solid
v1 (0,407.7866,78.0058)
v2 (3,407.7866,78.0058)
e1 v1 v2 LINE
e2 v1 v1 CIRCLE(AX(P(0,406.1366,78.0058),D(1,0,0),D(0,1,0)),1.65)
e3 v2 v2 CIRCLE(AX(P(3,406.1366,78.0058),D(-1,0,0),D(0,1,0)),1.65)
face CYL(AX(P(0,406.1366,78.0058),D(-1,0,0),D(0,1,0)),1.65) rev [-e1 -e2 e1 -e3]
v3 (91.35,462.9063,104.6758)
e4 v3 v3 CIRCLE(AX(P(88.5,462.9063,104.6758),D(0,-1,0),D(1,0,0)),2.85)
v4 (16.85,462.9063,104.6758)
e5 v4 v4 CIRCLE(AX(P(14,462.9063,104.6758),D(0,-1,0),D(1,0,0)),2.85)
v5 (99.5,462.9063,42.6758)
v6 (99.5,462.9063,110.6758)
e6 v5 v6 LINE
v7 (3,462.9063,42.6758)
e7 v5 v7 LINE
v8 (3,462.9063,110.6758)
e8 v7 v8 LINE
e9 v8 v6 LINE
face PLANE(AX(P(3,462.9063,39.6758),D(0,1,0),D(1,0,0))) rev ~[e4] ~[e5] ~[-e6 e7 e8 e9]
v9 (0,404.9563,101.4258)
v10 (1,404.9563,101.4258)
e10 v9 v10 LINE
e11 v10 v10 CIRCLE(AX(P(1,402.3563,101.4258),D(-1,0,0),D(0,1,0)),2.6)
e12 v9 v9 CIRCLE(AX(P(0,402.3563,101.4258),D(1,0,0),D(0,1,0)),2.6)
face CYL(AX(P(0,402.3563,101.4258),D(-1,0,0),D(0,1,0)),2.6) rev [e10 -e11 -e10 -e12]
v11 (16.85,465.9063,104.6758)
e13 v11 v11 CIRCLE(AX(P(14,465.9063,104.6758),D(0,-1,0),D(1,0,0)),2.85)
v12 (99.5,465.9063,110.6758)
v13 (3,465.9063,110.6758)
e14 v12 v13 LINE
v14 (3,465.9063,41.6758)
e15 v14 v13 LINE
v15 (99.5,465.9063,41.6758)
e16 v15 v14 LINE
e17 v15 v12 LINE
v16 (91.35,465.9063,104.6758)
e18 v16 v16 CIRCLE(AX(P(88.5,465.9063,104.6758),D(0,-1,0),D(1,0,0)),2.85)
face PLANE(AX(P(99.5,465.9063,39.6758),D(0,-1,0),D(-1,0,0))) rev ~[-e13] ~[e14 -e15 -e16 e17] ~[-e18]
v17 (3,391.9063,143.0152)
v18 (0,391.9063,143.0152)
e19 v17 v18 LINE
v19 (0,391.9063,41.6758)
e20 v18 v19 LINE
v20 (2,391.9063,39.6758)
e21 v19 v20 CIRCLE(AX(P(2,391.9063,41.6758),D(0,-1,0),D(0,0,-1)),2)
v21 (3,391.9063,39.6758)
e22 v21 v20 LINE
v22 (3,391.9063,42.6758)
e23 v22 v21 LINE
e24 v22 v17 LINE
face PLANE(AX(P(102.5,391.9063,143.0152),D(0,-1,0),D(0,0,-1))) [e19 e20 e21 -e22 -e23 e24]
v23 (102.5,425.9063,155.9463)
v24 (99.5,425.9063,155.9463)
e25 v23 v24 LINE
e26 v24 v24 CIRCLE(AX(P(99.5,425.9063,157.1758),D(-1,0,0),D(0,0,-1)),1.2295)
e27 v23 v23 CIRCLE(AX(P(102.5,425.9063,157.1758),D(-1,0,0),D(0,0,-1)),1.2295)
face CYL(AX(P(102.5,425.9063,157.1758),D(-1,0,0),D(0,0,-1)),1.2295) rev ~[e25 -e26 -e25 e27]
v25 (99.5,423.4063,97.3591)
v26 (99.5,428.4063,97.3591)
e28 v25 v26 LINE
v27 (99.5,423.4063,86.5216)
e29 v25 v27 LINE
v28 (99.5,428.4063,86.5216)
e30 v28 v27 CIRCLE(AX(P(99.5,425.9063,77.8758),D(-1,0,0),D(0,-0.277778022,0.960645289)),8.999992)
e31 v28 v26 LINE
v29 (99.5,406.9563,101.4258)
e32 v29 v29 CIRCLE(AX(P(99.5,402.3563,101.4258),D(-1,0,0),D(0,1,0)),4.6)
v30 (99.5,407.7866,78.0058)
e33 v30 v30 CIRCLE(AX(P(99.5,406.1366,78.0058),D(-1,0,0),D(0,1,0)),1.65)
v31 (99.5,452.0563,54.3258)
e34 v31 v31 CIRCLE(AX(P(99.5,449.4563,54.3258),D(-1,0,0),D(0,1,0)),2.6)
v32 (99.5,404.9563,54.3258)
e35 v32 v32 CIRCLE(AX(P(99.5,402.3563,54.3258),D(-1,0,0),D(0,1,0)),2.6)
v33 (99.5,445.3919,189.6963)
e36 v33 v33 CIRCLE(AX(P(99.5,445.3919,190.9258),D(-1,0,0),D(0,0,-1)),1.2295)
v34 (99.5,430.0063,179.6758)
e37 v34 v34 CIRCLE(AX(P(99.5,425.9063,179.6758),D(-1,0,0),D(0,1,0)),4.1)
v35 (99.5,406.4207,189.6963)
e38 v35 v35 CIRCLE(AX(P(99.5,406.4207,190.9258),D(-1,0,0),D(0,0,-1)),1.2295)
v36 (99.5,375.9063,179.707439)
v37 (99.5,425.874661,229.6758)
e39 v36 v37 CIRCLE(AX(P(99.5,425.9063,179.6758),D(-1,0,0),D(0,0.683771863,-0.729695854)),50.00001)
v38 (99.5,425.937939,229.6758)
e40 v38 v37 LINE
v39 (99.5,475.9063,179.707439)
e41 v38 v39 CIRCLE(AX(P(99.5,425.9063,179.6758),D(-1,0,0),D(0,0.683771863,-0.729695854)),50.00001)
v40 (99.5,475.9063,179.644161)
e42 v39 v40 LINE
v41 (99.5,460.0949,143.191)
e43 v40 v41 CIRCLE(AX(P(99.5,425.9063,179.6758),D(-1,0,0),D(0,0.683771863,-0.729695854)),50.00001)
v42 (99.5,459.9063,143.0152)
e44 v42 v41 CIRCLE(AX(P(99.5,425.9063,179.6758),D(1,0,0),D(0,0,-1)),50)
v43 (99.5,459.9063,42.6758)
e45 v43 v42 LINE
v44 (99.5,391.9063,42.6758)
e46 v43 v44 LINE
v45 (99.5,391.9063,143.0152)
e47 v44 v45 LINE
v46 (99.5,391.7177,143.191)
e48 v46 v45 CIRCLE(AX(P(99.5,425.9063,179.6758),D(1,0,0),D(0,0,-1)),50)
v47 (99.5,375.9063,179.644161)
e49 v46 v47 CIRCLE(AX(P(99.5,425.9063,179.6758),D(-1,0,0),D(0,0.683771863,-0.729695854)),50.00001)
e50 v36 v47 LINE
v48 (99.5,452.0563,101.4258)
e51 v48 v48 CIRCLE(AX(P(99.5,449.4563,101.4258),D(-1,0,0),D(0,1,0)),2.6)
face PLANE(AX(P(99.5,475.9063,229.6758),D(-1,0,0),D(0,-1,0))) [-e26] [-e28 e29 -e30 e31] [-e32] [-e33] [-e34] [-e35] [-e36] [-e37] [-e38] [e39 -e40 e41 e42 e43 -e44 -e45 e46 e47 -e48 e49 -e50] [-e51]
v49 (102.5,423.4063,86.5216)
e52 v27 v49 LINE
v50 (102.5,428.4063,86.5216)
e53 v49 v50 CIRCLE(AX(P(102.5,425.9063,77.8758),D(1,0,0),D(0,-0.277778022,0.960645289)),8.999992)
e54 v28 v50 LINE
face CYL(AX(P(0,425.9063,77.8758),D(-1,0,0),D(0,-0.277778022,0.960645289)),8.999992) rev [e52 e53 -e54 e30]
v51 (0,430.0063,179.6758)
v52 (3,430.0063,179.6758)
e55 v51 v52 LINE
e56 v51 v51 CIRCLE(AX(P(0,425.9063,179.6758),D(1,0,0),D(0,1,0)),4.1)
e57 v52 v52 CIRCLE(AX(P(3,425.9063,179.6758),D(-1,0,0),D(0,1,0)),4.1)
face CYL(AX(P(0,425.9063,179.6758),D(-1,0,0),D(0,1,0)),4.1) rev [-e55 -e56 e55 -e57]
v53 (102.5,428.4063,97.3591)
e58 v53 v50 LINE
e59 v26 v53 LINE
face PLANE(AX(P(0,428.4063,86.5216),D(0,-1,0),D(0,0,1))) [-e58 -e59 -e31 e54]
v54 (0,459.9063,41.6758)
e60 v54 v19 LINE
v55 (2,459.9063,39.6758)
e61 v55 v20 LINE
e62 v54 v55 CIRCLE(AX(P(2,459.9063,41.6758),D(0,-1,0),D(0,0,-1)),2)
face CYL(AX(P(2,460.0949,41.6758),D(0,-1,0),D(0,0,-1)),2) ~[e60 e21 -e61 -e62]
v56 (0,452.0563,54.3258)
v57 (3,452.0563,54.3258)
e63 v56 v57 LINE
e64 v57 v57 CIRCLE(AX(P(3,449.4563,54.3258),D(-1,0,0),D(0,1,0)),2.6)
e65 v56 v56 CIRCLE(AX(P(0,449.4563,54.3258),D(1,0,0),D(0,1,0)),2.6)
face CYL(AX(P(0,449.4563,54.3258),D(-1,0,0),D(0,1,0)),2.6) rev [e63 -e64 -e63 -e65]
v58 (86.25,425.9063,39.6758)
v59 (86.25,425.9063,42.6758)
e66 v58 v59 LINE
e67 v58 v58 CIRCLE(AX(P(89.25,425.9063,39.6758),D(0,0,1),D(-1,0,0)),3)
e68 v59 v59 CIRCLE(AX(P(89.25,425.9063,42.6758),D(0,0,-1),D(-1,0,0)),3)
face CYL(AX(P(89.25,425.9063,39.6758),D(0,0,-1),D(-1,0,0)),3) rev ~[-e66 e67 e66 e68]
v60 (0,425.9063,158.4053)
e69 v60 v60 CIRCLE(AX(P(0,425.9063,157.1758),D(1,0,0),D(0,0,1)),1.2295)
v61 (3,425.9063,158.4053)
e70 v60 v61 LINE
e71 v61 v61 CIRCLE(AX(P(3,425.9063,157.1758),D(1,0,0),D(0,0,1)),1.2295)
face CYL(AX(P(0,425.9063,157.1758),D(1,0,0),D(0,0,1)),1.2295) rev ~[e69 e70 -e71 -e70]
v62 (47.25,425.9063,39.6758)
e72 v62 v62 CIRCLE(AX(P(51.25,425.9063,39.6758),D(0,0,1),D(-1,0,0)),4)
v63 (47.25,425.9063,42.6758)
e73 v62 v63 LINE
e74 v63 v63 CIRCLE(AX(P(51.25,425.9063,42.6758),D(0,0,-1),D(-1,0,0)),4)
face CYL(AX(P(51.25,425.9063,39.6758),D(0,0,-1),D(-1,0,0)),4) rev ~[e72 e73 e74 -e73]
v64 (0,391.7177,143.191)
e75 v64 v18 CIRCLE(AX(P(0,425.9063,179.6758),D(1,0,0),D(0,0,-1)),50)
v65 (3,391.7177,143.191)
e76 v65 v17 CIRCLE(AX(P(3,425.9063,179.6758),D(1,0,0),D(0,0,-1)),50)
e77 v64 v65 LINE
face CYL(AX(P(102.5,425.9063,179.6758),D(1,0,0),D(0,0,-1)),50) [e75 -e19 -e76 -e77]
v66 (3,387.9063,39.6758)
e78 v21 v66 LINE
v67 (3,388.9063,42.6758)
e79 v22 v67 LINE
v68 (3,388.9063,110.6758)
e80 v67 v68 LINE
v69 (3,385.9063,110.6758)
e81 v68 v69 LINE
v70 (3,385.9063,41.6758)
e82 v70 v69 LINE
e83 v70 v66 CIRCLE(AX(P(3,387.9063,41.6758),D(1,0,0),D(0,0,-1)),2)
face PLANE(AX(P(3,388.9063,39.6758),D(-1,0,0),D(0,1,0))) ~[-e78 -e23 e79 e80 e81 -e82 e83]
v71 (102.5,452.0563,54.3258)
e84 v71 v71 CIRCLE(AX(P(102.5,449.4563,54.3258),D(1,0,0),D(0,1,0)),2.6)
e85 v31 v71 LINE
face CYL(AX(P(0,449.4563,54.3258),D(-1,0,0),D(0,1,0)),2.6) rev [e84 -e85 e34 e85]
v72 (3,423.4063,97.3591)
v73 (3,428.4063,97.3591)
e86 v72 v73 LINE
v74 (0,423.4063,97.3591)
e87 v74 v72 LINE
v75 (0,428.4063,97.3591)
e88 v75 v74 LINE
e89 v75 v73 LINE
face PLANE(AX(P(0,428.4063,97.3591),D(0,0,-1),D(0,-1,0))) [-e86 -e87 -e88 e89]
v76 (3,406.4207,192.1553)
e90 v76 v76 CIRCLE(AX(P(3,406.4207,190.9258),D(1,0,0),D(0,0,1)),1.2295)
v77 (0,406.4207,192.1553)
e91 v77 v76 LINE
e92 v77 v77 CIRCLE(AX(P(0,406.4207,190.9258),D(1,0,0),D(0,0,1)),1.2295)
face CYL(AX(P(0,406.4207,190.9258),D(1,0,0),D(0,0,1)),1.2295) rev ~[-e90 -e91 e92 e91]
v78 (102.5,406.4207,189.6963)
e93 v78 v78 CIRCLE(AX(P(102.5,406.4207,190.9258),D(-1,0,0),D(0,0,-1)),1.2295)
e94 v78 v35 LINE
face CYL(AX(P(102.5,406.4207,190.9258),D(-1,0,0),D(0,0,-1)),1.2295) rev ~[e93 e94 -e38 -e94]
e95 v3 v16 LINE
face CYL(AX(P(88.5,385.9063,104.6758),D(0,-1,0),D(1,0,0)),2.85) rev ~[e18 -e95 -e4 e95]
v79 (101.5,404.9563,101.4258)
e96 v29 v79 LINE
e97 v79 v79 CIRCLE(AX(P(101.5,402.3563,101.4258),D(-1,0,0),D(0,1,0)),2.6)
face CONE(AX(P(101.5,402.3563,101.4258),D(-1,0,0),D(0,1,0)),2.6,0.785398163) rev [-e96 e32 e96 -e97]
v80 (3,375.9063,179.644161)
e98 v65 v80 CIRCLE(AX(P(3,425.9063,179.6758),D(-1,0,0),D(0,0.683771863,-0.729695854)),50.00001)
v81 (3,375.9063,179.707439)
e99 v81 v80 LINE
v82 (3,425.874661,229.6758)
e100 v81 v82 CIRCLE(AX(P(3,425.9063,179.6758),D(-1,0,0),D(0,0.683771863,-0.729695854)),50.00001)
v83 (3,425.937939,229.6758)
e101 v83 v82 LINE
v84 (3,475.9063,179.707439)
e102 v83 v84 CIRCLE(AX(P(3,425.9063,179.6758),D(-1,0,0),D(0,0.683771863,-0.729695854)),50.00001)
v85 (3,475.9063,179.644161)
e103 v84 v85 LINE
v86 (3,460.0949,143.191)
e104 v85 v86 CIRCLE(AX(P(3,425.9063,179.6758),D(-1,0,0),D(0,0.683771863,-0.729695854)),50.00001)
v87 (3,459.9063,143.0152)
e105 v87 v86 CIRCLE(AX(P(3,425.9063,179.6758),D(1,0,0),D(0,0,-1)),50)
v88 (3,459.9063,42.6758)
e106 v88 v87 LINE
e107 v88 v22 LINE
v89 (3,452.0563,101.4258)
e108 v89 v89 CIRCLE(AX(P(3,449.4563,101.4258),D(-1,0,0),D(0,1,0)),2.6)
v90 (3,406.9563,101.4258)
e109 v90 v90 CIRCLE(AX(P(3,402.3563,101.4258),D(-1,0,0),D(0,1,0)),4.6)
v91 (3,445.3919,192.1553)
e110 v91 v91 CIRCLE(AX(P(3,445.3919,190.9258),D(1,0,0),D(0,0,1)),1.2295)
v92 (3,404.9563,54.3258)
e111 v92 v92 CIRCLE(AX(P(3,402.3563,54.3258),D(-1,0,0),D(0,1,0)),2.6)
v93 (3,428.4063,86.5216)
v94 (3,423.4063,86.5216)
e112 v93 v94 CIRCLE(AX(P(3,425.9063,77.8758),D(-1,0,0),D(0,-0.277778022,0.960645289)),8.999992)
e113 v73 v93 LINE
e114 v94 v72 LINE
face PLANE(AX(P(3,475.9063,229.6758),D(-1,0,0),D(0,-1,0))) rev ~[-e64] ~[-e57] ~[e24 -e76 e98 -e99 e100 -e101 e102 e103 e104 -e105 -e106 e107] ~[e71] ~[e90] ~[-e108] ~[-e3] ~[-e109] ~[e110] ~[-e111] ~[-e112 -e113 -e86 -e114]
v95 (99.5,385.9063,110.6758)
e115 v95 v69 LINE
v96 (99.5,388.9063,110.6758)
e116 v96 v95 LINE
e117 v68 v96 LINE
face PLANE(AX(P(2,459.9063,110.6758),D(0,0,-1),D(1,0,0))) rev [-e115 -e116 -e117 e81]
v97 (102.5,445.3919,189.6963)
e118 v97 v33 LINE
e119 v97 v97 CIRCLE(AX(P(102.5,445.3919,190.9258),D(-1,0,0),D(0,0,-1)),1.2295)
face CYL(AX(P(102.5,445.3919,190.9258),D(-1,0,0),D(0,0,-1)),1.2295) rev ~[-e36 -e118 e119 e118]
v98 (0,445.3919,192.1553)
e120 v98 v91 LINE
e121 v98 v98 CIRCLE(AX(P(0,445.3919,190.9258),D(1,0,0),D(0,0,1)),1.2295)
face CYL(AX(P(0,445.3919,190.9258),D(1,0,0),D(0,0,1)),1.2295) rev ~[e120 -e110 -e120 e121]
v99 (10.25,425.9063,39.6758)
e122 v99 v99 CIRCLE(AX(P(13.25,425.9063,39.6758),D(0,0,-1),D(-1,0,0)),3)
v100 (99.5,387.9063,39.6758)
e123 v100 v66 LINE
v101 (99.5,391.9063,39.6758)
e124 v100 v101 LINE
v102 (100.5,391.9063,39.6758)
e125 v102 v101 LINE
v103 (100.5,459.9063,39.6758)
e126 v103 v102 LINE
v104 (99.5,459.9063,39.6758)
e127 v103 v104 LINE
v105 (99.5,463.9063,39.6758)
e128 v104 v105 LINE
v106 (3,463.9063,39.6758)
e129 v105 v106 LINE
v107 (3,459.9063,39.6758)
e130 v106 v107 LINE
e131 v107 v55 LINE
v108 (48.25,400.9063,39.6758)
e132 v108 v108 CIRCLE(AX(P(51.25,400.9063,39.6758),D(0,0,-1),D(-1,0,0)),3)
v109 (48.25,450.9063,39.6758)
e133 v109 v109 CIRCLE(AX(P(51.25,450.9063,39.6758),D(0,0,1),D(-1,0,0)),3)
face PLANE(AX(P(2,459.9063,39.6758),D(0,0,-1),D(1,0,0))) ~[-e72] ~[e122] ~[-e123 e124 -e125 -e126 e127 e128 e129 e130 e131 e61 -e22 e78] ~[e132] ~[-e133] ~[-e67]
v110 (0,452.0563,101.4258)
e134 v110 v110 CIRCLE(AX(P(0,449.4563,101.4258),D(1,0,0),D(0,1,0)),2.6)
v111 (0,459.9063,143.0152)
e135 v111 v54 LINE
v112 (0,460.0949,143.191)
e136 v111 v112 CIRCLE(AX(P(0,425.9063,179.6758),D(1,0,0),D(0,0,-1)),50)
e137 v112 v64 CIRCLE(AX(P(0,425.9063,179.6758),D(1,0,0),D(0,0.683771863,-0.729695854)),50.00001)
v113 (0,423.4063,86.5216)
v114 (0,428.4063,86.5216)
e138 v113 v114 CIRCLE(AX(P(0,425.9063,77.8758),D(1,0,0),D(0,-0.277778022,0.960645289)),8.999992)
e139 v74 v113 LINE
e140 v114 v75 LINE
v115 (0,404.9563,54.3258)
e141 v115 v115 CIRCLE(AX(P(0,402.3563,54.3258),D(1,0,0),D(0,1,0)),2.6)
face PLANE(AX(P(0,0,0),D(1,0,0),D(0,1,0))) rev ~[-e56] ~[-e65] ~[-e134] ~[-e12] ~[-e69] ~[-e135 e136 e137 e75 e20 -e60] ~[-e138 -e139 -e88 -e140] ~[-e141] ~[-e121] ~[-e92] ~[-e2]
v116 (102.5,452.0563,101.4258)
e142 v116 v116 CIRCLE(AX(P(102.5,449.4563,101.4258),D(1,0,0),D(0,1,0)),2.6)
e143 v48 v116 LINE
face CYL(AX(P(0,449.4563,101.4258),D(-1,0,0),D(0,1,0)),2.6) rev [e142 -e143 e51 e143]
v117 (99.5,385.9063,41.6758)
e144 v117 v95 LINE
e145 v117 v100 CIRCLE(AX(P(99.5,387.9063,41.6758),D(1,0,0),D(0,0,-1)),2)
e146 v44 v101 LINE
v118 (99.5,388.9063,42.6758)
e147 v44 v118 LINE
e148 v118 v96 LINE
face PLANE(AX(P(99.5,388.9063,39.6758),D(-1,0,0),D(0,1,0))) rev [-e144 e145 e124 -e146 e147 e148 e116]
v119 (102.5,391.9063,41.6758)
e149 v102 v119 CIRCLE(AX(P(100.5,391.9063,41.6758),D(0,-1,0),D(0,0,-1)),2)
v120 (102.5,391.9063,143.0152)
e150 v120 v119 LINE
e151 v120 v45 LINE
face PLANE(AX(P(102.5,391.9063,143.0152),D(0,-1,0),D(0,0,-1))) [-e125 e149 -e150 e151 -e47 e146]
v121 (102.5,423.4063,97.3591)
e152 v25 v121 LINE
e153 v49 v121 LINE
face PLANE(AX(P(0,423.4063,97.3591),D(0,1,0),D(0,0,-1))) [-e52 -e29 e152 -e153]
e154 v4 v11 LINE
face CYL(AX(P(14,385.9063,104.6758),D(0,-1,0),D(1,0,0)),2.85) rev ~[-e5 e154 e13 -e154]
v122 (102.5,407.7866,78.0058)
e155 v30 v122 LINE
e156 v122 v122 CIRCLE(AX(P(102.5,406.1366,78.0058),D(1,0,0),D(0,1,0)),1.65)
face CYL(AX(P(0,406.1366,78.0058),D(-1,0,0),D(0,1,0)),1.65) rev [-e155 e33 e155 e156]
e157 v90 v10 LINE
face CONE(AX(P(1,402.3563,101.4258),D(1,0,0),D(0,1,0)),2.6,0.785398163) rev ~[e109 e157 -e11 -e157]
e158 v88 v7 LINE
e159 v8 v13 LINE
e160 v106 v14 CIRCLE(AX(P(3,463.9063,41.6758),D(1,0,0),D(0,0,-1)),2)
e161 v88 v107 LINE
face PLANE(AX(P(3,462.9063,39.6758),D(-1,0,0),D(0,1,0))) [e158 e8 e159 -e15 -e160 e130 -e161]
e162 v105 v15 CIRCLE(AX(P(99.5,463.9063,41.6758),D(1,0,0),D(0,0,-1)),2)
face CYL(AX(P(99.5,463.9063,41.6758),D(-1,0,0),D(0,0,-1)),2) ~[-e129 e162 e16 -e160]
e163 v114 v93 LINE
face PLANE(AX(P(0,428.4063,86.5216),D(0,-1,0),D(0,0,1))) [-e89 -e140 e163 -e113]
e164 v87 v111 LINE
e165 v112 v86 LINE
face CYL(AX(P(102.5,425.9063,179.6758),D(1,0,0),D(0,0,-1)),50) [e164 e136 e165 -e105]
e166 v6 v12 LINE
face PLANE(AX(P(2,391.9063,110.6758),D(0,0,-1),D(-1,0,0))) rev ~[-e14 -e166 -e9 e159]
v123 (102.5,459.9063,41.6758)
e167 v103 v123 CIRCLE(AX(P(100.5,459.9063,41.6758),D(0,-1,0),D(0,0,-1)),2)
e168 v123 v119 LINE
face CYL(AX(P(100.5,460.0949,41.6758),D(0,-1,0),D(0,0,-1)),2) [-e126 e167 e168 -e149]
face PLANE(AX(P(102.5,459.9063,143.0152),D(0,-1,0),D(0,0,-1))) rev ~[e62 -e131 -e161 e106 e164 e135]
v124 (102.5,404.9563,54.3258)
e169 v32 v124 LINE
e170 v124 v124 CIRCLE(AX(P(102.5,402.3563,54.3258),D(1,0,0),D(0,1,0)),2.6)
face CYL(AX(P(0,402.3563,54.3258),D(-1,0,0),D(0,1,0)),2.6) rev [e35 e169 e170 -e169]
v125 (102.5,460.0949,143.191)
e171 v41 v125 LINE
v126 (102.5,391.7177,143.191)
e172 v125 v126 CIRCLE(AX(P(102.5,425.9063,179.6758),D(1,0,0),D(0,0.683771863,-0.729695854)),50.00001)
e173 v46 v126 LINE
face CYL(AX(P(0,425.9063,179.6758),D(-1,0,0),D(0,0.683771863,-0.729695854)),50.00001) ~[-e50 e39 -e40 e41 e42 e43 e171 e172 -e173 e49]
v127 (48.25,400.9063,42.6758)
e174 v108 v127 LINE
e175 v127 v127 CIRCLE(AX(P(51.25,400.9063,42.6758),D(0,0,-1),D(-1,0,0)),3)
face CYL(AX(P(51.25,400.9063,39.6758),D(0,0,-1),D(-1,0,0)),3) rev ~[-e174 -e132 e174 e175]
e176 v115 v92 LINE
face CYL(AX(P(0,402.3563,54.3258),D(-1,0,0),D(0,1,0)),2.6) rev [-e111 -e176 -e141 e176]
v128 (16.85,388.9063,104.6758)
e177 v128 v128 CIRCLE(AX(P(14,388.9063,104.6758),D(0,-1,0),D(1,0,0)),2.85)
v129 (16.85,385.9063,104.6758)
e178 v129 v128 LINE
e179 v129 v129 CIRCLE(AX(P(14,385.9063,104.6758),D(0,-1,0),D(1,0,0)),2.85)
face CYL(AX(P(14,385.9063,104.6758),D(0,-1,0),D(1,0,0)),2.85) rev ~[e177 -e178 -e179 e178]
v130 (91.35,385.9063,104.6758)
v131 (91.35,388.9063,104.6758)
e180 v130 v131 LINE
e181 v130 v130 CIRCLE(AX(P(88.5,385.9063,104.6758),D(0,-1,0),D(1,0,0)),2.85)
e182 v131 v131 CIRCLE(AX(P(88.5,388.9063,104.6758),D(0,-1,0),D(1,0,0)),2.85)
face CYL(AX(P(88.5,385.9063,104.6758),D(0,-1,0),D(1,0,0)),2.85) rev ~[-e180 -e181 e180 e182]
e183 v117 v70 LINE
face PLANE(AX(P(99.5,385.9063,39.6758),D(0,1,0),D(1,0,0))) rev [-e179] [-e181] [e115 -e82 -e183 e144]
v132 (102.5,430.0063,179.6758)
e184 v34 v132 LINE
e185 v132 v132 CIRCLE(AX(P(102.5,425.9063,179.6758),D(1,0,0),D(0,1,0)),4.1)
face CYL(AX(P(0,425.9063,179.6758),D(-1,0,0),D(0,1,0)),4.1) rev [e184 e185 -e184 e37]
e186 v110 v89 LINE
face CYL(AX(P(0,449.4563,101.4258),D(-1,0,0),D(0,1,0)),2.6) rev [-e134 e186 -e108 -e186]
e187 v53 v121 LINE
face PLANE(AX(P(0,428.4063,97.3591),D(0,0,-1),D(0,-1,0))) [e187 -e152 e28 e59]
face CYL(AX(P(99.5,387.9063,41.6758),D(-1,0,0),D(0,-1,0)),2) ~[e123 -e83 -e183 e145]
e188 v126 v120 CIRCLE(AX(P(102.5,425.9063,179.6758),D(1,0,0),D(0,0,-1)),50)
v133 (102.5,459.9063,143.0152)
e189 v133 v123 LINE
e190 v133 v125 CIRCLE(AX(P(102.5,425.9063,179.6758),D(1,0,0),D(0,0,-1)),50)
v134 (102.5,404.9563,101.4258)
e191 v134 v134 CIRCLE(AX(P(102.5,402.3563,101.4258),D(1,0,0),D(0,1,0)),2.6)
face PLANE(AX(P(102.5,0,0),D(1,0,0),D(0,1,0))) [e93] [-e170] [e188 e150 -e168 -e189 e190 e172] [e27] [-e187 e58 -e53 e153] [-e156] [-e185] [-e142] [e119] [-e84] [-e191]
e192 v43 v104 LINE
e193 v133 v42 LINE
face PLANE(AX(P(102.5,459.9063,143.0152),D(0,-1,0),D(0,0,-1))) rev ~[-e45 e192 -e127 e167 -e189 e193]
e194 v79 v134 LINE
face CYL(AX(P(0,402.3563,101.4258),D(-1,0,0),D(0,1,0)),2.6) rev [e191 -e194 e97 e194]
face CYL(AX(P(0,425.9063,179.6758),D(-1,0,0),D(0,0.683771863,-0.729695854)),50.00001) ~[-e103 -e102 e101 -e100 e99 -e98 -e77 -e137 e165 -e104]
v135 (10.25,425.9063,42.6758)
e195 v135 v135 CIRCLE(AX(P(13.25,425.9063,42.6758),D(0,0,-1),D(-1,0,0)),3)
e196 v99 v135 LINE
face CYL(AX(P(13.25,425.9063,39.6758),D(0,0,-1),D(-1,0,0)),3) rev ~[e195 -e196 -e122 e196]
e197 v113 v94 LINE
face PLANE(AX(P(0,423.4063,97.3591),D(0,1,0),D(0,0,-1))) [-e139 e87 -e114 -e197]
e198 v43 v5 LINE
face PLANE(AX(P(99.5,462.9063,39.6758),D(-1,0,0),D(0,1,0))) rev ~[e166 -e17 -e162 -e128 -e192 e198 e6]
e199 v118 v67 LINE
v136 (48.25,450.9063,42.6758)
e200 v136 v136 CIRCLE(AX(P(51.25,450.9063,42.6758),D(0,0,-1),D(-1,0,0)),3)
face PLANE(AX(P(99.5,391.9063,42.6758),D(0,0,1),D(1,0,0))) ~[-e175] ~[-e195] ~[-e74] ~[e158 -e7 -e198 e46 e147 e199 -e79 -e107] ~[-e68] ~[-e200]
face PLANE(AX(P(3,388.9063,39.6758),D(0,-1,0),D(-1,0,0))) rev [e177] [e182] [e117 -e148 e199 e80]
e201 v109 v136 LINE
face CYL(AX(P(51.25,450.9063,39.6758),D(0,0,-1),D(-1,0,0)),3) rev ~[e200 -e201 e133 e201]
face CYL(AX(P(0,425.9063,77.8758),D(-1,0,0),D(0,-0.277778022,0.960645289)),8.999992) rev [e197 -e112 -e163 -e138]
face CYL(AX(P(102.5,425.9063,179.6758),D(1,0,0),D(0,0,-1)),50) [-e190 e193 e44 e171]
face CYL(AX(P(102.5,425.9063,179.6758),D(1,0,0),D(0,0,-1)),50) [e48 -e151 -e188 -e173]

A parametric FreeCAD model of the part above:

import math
import FreeCAD as App
import Part
import Sketcher


def edges_at(feature, points):
    """Names of the edges that pass closest to the given points."""
    edges = feature.Shape.Edges
    near = lambda p: min(range(len(edges)), key=lambda i: edges[i].distToShape(Part.Vertex(*p))[0])
    return sorted({f"Edge{near(p) + 1}" for p in points})


def add_polygon(sketch, points):
    """Adds a closed chain of lines whose ends are joined by coincident constraints."""
    first, n = sketch.GeometryCount, len(points)
    for a, b in zip(points, points[1:] + points[:1]):
        sketch.addGeometry(Part.LineSegment(App.Vector(*a, 0), App.Vector(*b, 0)), False)
    for i in range(n):
        sketch.addConstraint(Sketcher.Constraint("Coincident", first + i, 2, first + (i + 1) % n, 1))

doc = App.newDocument("Part")
body = doc.addObject("PartDesign::Body", "Body")

# Sketch on YZ plane
sketch1 = body.newObject("Sketcher::SketchObject", "Sketch")
sketch1.AttachmentSupport = (doc.getObject("YZ_Plane"), [""])
sketch1.MapMode = "FlatFace"
sketch1.addGeometry(Part.LineSegment(App.Vector(391.7177, 39.6758, 0), App.Vector(460.0949, 39.6758, 0)), False)
sketch1.addGeometry(Part.LineSegment(App.Vector(460.0949, 39.6758, 0), App.Vector(460.0949, 143.191, 0)), False)
sketch1.addGeometry(Part.ArcOfCircle(Part.Circle(App.Vector(425.9063, 179.6758, 0), App.Vector(0, 0, 1), 50.00001), math.radians(-46.860902), math.radians(226.860902)), False)
sketch1.addGeometry(Part.LineSegment(App.Vector(391.7177, 143.191, 0), App.Vector(391.7177, 39.6758, 0)), False)
sketch1.addGeometry(Part.Circle(App.Vector(402.3563, 54.3258, 0), App.Vector(0, 0, 1), 2.6), False)
sketch1.addGeometry(Part.Circle(App.Vector(406.1366, 78.0058, 0), App.Vector(0, 0, 1), 1.65), False)
sketch1.addGeometry(Part.Circle(App.Vector(402.3563, 101.4258, 0), App.Vector(0, 0, 1), 2.6), False)
sketch1.addGeometry(Part.Circle(App.Vector(449.4563, 54.3258, 0), App.Vector(0, 0, 1), 2.6), False)
sketch1.addGeometry(Part.LineSegment(App.Vector(428.4063, 97.3591, 0), App.Vector(428.4063, 86.5216, 0)), False)
sketch1.addGeometry(Part.ArcOfCircle(Part.Circle(App.Vector(425.9063, 77.8758, 0), App.Vector(0, 0, 1), 8.999992), math.radians(106.127635), math.radians(433.872365)), False)
sketch1.addGeometry(Part.LineSegment(App.Vector(423.4063, 86.5216, 0), App.Vector(423.4063, 97.3591, 0)), False)
sketch1.addGeometry(Part.LineSegment(App.Vector(423.4063, 97.3591, 0), App.Vector(428.4063, 97.3591, 0)), False)
sketch1.addGeometry(Part.Circle(App.Vector(449.4563, 101.4258, 0), App.Vector(0, 0, 1), 2.6), False)
sketch1.addGeometry(Part.Circle(App.Vector(425.9063, 179.6758, 0), App.Vector(0, 0, 1), 4.1), False)
sketch1.addConstraint(Sketcher.Constraint("Coincident", 0, 2, 1, 1))
sketch1.addConstraint(Sketcher.Constraint("Coincident", 1, 2, 2, 1))
sketch1.addConstraint(Sketcher.Constraint("Coincident", 2, 2, 3, 1))
sketch1.addConstraint(Sketcher.Constraint("Coincident", 3, 2, 0, 1))
sketch1.addConstraint(Sketcher.Constraint("Coincident", 8, 2, 9, 2))
sketch1.addConstraint(Sketcher.Constraint("Coincident", 9, 1, 10, 1))
sketch1.addConstraint(Sketcher.Constraint("Coincident", 10, 2, 11, 1))
sketch1.addConstraint(Sketcher.Constraint("Coincident", 11, 2, 8, 1))
sketch1.addConstraint(Sketcher.Constraint("Horizontal", 0))
sketch1.addConstraint(Sketcher.Constraint("Vertical", 1))
sketch1.addConstraint(Sketcher.Constraint("Vertical", 3))
sketch1.addConstraint(Sketcher.Constraint("Vertical", 8))
sketch1.addConstraint(Sketcher.Constraint("Vertical", 10))
sketch1.addConstraint(Sketcher.Constraint("Horizontal", 11))
sketch1.addConstraint(Sketcher.Constraint("Coincident", 13, 3, 2, 3))
sketch1.addConstraint(Sketcher.Constraint("Equal", 4, 6))
sketch1.addConstraint(Sketcher.Constraint("Equal", 6, 7))
sketch1.addConstraint(Sketcher.Constraint("Equal", 7, 12))
sketch1.addConstraint(Sketcher.Constraint("Horizontal", 4, 3, 7, 3))
sketch1.addConstraint(Sketcher.Constraint("Horizontal", 6, 3, 12, 3))
sketch1.addConstraint(Sketcher.Constraint("Horizontal", 1, 2, 2, 2))
sketch1.addConstraint(Sketcher.Constraint("Horizontal", 8, 2, 9, 1))
sketch1.addConstraint(Sketcher.Constraint("Vertical", 4, 3, 6, 3))
sketch1.addConstraint(Sketcher.Constraint("Vertical", 2, 3, 9, 3))
sketch1.addConstraint(Sketcher.Constraint("Vertical", 7, 3, 12, 3))
sketch1.addConstraint(Sketcher.Constraint("Radius", 2, 50.0))
sketch1.addConstraint(Sketcher.Constraint("Radius", 9, 9.0))
sketch1.addConstraint(Sketcher.Constraint("Diameter", 4, 5.2))
sketch1.addConstraint(Sketcher.Constraint("Diameter", 5, 3.3))
sketch1.addConstraint(Sketcher.Constraint("Diameter", 13, 8.2))
sketch1.addConstraint(Sketcher.Constraint("DistanceX", 11, 1, 11, 2, 5.0))
sketch1.addConstraint(Sketcher.Constraint("DistanceX", 0, 1, 0, 2, 68.3772))
sketch1.addConstraint(Sketcher.Constraint("DistanceY", 8, 2, 8, 1, 10.8375))
sketch1.addConstraint(Sketcher.Constraint("DistanceY", 4, 3, 6, 3, 47.1))
sketch1.addConstraint(Sketcher.Constraint("DistanceX", 4, 3, 7, 3, 47.1))
sketch1.addConstraint(Sketcher.Constraint("DistanceY", 9, 3, 2, 3, 101.8))
sketch1.addConstraint(Sketcher.Constraint("DistanceX", 7, 3, 0, 2, 10.6386))
sketch1.addConstraint(Sketcher.Constraint("DistanceY", 0, 2, 9, 3, 38.2))
sketch1.addConstraint(Sketcher.Constraint("DistanceX", 5, 3, 8, 2, 22.2697))
sketch1.addConstraint(Sketcher.Constraint("DistanceY", 10, 2, 6, 3, 4.0667))
sketch1.addConstraint(Sketcher.Constraint("DistanceY", 5, 3, 10, 2, 19.3533))
sketch1.addConstraint(Sketcher.Constraint("DistanceX", -1, 1, 0, 2, 460.095))
sketch1.addConstraint(Sketcher.Constraint("DistanceY", -1, 1, 1, 2, 143.191))
pad1 = body.newObject("PartDesign::Pad", "Pad")
pad1.Profile = sketch1
pad1.Length = 102.5

# Sketch on XY plane
sketch2 = body.newObject("Sketcher::SketchObject", "Sketch001")
sketch2.AttachmentSupport = (doc.getObject("XY_Plane"), [""])
sketch2.MapMode = "FlatFace"
sketch2.AttachmentOffset = App.Placement(App.Vector(0, 0, 229.6758), App.Rotation())
add_polygon(sketch2, [(3, 375.9063), (3, 475.9063), (99.5, 475.9063), (99.5, 375.9063)])  # lines 0-3
sketch2.addConstraint(Sketcher.Constraint("Vertical", 0))
sketch2.addConstraint(Sketcher.Constraint("Horizontal", 1))
sketch2.addConstraint(Sketcher.Constraint("Vertical", 2))
sketch2.addConstraint(Sketcher.Constraint("Horizontal", 3))
sketch2.addConstraint(Sketcher.Constraint("DistanceX", -1, 1, 0, 2, 3.0))
sketch2.addConstraint(Sketcher.Constraint("DistanceY", 0, 1, 0, 2, 100.0))
sketch2.addConstraint(Sketcher.Constraint("DistanceX", 1, 1, 1, 2, 96.5))
sketch2.addConstraint(Sketcher.Constraint("DistanceY", -1, 1, 0, 2, 475.9063))
pocket1 = body.newObject("PartDesign::Pocket", "Pocket")
pocket1.Profile = sketch2
pocket1.Length = 187
doc.recompute()

fillet = body.newObject("PartDesign::Fillet", "Fillet")
fillet.Base = (pocket1, edges_at(pocket1, [(0, 425.906, 39.676), (102.5, 425.906, 39.676)]))
fillet.Radius = 2

# Sketch on YZ plane
sketch3 = body.newObject("Sketcher::SketchObject", "Sketch002")
sketch3.AttachmentSupport = (doc.getObject("YZ_Plane"), [""])
sketch3.MapMode = "FlatFace"
sketch3.AttachmentOffset = App.Placement(App.Vector(0, 0, 102.5), App.Rotation())
sketch3.addGeometry(Part.ArcOfCircle(Part.Circle(App.Vector(425.9063, 179.6758, 0), App.Vector(0, 0, 1), 50), math.radians(-47.156353), math.radians(-46.860902)), False)
sketch3.addGeometry(Part.LineSegment(App.Vector(459.9063, 143.0152, 0), App.Vector(459.9063, 39.6758, 0)), False)
sketch3.addGeometry(Part.LineSegment(App.Vector(459.9063, 39.6758, 0), App.Vector(460.0949, 39.6758, 0)), False)
sketch3.addGeometry(Part.LineSegment(App.Vector(460.0949, 39.6758, 0), App.Vector(460.0949, 143.191, 0)), False)
sketch3.addGeometry(Part.LineSegment(App.Vector(391.9063, 39.6758, 0), App.Vector(391.9063, 143.0152, 0)), False)
sketch3.addGeometry(Part.ArcOfCircle(Part.Circle(App.Vector(425.9063, 179.6758, 0), App.Vector(0, 0, 1), 50), math.radians(-133.139098), math.radians(-132.843647)), False)
sketch3.addGeometry(Part.LineSegment(App.Vector(391.7177, 143.191, 0), App.Vector(391.7177, 39.6758, 0)), False)
sketch3.addGeometry(Part.LineSegment(App.Vector(391.7177, 39.6758, 0), App.Vector(391.9063, 39.6758, 0)), False)
sketch3.addConstraint(Sketcher.Constraint("Coincident", 0, 1, 1, 1))
sketch3.addConstraint(Sketcher.Constraint("Coincident", 1, 2, 2, 1))
sketch3.addConstraint(Sketcher.Constraint("Coincident", 2, 2, 3, 1))
sketch3.addConstraint(Sketcher.Constraint("Coincident", 3, 2, 0, 2))
sketch3.addConstraint(Sketcher.Constraint("Coincident", 4, 2, 5, 2))
sketch3.addConstraint(Sketcher.Constraint("Coincident", 5, 1, 6, 1))
sketch3.addConstraint(Sketcher.Constraint("Coincident", 6, 2, 7, 1))
sketch3.addConstraint(Sketcher.Constraint("Coincident", 7, 2, 4, 1))
sketch3.addConstraint(Sketcher.Constraint("Vertical", 1))
sketch3.addConstraint(Sketcher.Constraint("Horizontal", 2))
sketch3.addConstraint(Sketcher.Constraint("Vertical", 3))
sketch3.addConstraint(Sketcher.Constraint("Vertical", 4))
sketch3.addConstraint(Sketcher.Constraint("Vertical", 6))
sketch3.addConstraint(Sketcher.Constraint("Horizontal", 7))
sketch3.addConstraint(Sketcher.Constraint("Coincident", 5, 3, 0, 3))
sketch3.addConstraint(Sketcher.Constraint("Equal", 0, 5))
sketch3.addConstraint(Sketcher.Constraint("Horizontal", 0, 1, 4, 2))
sketch3.addConstraint(Sketcher.Constraint("Horizontal", 3, 2, 5, 1))
sketch3.addConstraint(Sketcher.Constraint("Horizontal", 2, 2, 6, 2))
sketch3.addConstraint(Sketcher.Constraint("Radius", 0, 50.0))
sketch3.addConstraint(Sketcher.Constraint("DistanceX", 0, 3, 0, 1, 34.0))
sketch3.addConstraint(Sketcher.Constraint("DistanceY", 1, 2, 0, 3, 140.0))
sketch3.addConstraint(Sketcher.Constraint("DistanceX", 2, 1, 2, 2, 0.1886))
sketch3.addConstraint(Sketcher.Constraint("DistanceX", -1, 1, 2, 2, 460.095))
sketch3.addConstraint(Sketcher.Constraint("DistanceY", -1, 1, 3, 2, 143.191))
pocket2 = body.newObject("PartDesign::Pocket", "Pocket001")
pocket2.Profile = sketch3
pocket2.Type = "ThroughAll"

# Sketch on XZ plane
sketch4 = body.newObject("Sketcher::SketchObject", "Sketch003")
sketch4.AttachmentSupport = (doc.getObject("XZ_Plane"), [""])
sketch4.MapMode = "FlatFace"
sketch4.AttachmentOffset = App.Placement(App.Vector(0, 0, -459.9063), App.Rotation())
add_polygon(sketch4, [(3, 42.6758), (99.5, 42.6758), (99.5, 39.6758), (3, 39.6758)])  # lines 0-3
sketch4.addConstraint(Sketcher.Constraint("Horizontal", 0))
sketch4.addConstraint(Sketcher.Constraint("Vertical", 1))
sketch4.addConstraint(Sketcher.Constraint("Horizontal", 2))
sketch4.addConstraint(Sketcher.Constraint("Vertical", 3))
sketch4.addConstraint(Sketcher.Constraint("DistanceY", 1, 2, 1, 1, 3.0))
sketch4.addConstraint(Sketcher.Constraint("DistanceX", -1, 1, 2, 2, 3.0))
sketch4.addConstraint(Sketcher.Constraint("DistanceX", 0, 1, 0, 2, 96.5))
sketch4.addConstraint(Sketcher.Constraint("DistanceY", -1, 1, 0, 2, 42.6758))
pad2 = body.newObject("PartDesign::Pad", "Pad001")
pad2.Profile = sketch4
pad2.Length = 3
pad2.Reversed = True
doc.recompute()

datumplane = body.newObject("PartDesign::Plane", "DatumPlane")
datumplane.AttachmentSupport = (doc.getObject("XZ_Plane"), [""])
datumplane.MapMode = "FlatFace"
datumplane.AttachmentOffset = App.Placement(App.Vector(0, 0, -425.9063), App.Rotation())
mirrored = body.newObject("PartDesign::Mirrored", "Mirrored")
mirrored.Originals = [pad2]
mirrored.MirrorPlane = (datumplane, [""])
body.Tip = mirrored

# Sketch on XY plane
sketch5 = body.newObject("Sketcher::SketchObject", "Sketch004")
sketch5.AttachmentSupport = (doc.getObject("XY_Plane"), [""])
sketch5.MapMode = "FlatFace"
sketch5.AttachmentOffset = App.Placement(App.Vector(0, 0, 39.6758), App.Rotation())
add_polygon(sketch5, [(99.5, 462.9063), (3, 462.9063), (3, 465.9063), (99.5, 465.9063)])  # lines 0-3
sketch5.addConstraint(Sketcher.Constraint("Horizontal", 0))
sketch5.addConstraint(Sketcher.Constraint("Vertical", 1))
sketch5.addConstraint(Sketcher.Constraint("Horizontal", 2))
sketch5.addConstraint(Sketcher.Constraint("Vertical", 3))
sketch5.addConstraint(Sketcher.Constraint("DistanceY", 1, 1, 1, 2, 3.0))
sketch5.addConstraint(Sketcher.Constraint("DistanceX", -1, 1, 0, 2, 3.0))
sketch5.addConstraint(Sketcher.Constraint("DistanceX", 0, 2, 0, 1, 96.5))
sketch5.addConstraint(Sketcher.Constraint("DistanceY", -1, 1, 0, 2, 462.9063))
pad3 = body.newObject("PartDesign::Pad", "Pad002")
pad3.Profile = sketch5
pad3.Length = 71
doc.recompute()

datumplane2 = body.newObject("PartDesign::Plane", "DatumPlane001")
datumplane2.AttachmentSupport = (doc.getObject("XZ_Plane"), [""])
datumplane2.MapMode = "FlatFace"
datumplane2.AttachmentOffset = App.Placement(App.Vector(0, 0, -425.9063), App.Rotation())
mirrored2 = body.newObject("PartDesign::Mirrored", "Mirrored001")
mirrored2.Originals = [pad3]
mirrored2.MirrorPlane = (datumplane2, [""])
body.Tip = mirrored2
doc.recompute()

fillet2 = body.newObject("PartDesign::Fillet", "Fillet001")
fillet2.Base = (mirrored2, edges_at(mirrored2, [(51.25, 465.906, 39.676), (51.25, 385.906, 39.676)]))
fillet2.Radius = 2

# Sketch on XZ plane
sketch6 = body.newObject("Sketcher::SketchObject", "Sketch005")
sketch6.AttachmentSupport = (doc.getObject("XZ_Plane"), [""])
sketch6.MapMode = "FlatFace"
sketch6.AttachmentOffset = App.Placement(App.Vector(0, 0, -385.9063), App.Rotation())
sketch6.addGeometry(Part.Circle(App.Vector(88.5, 104.6758, 0), App.Vector(0, 0, 1), 2.85), False)
sketch6.addGeometry(Part.Circle(App.Vector(14, 104.6758, 0), App.Vector(0, 0, 1), 2.85), False)
sketch6.addConstraint(Sketcher.Constraint("Equal", 0, 1))
sketch6.addConstraint(Sketcher.Constraint("Horizontal", 0, 3, 1, 3))
sketch6.addConstraint(Sketcher.Constraint("Diameter", 0, 5.7))
sketch6.addConstraint(Sketcher.Constraint("DistanceX", -1, 1, 1, 3, 14.0))
sketch6.addConstraint(Sketcher.Constraint("DistanceX", -1, 1, 0, 3, 88.5))
sketch6.addConstraint(Sketcher.Constraint("DistanceY", -1, 1, 0, 3, 104.6758))
pocket3 = body.newObject("PartDesign::Pocket", "Pocket002")
pocket3.Profile = sketch6
pocket3.Type = "ThroughAll"
doc.recompute()

chamfer = body.newObject("PartDesign::Chamfer", "Chamfer")
chamfer.Base = (pocket3, edges_at(pocket3, [(99.5, 399.756, 101.426)]))
chamfer.Size = 2
doc.recompute()

chamfer2 = body.newObject("PartDesign::Chamfer", "Chamfer001")
chamfer2.Base = (chamfer, edges_at(chamfer, [(3, 399.756, 101.426)]))
chamfer2.Size = 2

# Sketch on YZ plane
sketch7 = body.newObject("Sketcher::SketchObject", "Sketch006")
sketch7.AttachmentSupport = (doc.getObject("YZ_Plane"), [""])
sketch7.MapMode = "FlatFace"
sketch7.AttachmentOffset = App.Placement(App.Vector(0, 0, 102.5), App.Rotation())
sketch7.addGeometry(Part.Circle(App.Vector(406.4207, 190.9258, 0), App.Vector(0, 0, 1), 1.2295), False)
sketch7.addGeometry(Part.Circle(App.Vector(445.3919, 190.9258, 0), App.Vector(0, 0, 1), 1.2295), False)
sketch7.addGeometry(Part.Circle(App.Vector(425.9063, 157.1758, 0), App.Vector(0, 0, 1), 1.2295), False)
sketch7.addConstraint(Sketcher.Constraint("Equal", 0, 1))
sketch7.addConstraint(Sketcher.Constraint("Equal", 1, 2))
sketch7.addConstraint(Sketcher.Constraint("Horizontal", 0, 3, 1, 3))
sketch7.addConstraint(Sketcher.Constraint("Diameter", 0, 2.459))
sketch7.addConstraint(Sketcher.Constraint("DistanceY", 2, 3, 0, 3, 33.75))
sketch7.addConstraint(Sketcher.Constraint("DistanceX", -1, 1, 1, 3, 445.392))
sketch7.addConstraint(Sketcher.Constraint("DistanceX", -1, 1, 0, 3, 406.4207))
sketch7.addConstraint(Sketcher.Constraint("DistanceY", -1, 1, 0, 3, 190.9258))
sketch7.addConstraint(Sketcher.Constraint("DistanceX", -1, 1, 2, 3, 425.9063))
doc.recompute()
hole = body.newObject("PartDesign::Hole", "Hole")
hole.Profile = sketch7
hole.ThreadType = "None"
hole.Diameter = 2.459
hole.DepthType = "Dimension"
hole.Depth = 4.25
hole.DrillPoint = "Angled"
hole.DrillPointAngle = 120

# Sketch on XY plane
sketch8 = body.newObject("Sketcher::SketchObject", "Sketch007")
sketch8.AttachmentSupport = (doc.getObject("XY_Plane"), [""])
sketch8.MapMode = "FlatFace"
sketch8.AttachmentOffset = App.Placement(App.Vector(0, 0, 39.6758), App.Rotation())
sketch8.addGeometry(Part.Circle(App.Vector(51.25, 425.9063, 0), App.Vector(0, 0, 1), 4), False)
sketch8.addGeometry(Part.Circle(App.Vector(89.25, 425.9063, 0), App.Vector(0, 0, 1), 3), False)
sketch8.addGeometry(Part.Circle(App.Vector(51.25, 450.9063, 0), App.Vector(0, 0, 1), 3), False)
sketch8.addGeometry(Part.Circle(App.Vector(13.25, 425.9063, 0), App.Vector(0, 0, 1), 3), False)
sketch8.addGeometry(Part.Circle(App.Vector(51.25, 400.9063, 0), App.Vector(0, 0, 1), 3), False)
sketch8.addConstraint(Sketcher.Constraint("Equal", 1, 2))
sketch8.addConstraint(Sketcher.Constraint("Equal", 2, 3))
sketch8.addConstraint(Sketcher.Constraint("Equal", 3, 4))
sketch8.addConstraint(Sketcher.Constraint("Horizontal", 0, 3, 1, 3))
sketch8.addConstraint(Sketcher.Constraint("Horizontal", 1, 3, 3, 3))
sketch8.addConstraint(Sketcher.Constraint("Vertical", 0, 3, 2, 3))
sketch8.addConstraint(Sketcher.Constraint("Vertical", 2, 3, 4, 3))
sketch8.addConstraint(Sketcher.Constraint("Diameter", 0, 8.0))
sketch8.addConstraint(Sketcher.Constraint("Diameter", 1, 6.0))
sketch8.addConstraint(Sketcher.Constraint("DistanceX", 0, 3, 1, 3, 38.0))
sketch8.addConstraint(Sketcher.Constraint("DistanceY", 0, 3, 2, 3, 25.0))
sketch8.addConstraint(Sketcher.Constraint("DistanceX", 3, 3, 0, 3, 38.0))
sketch8.addConstraint(Sketcher.Constraint("DistanceY", 4, 3, 0, 3, 25.0))
sketch8.addConstraint(Sketcher.Constraint("DistanceX", -1, 1, 0, 3, 51.25))
sketch8.addConstraint(Sketcher.Constraint("DistanceY", -1, 1, 0, 3, 425.9063))
pocket4 = body.newObject("PartDesign::Pocket", "Pocket003")
pocket4.Profile = sketch8
pocket4.Length = 71
pocket4.Reversed = True

# Sketch on YZ plane
sketch9 = body.newObject("Sketcher::SketchObject", "Sketch008")
sketch9.AttachmentSupport = (doc.getObject("YZ_Plane"), [""])
sketch9.MapMode = "FlatFace"
sketch9.addGeometry(Part.Circle(App.Vector(406.4207, 190.9258, 0), App.Vector(0, 0, 1), 1.2295), False)
sketch9.addGeometry(Part.Circle(App.Vector(425.9063, 157.1758, 0), App.Vector(0, 0, 1), 1.2295), False)
sketch9.addGeometry(Part.Circle(App.Vector(445.3919, 190.9258, 0), App.Vector(0, 0, 1), 1.2295), False)
sketch9.addConstraint(Sketcher.Constraint("Equal", 0, 1))
sketch9.addConstraint(Sketcher.Constraint("Equal", 1, 2))
sketch9.addConstraint(Sketcher.Constraint("Horizontal", 0, 3, 2, 3))
sketch9.addConstraint(Sketcher.Constraint("Diameter", 0, 2.459))
sketch9.addConstraint(Sketcher.Constraint("DistanceY", 1, 3, 0, 3, 33.75))
sketch9.addConstraint(Sketcher.Constraint("DistanceX", -1, 1, 2, 3, 445.392))
sketch9.addConstraint(Sketcher.Constraint("DistanceX", -1, 1, 0, 3, 406.4207))
sketch9.addConstraint(Sketcher.Constraint("DistanceY", -1, 1, 0, 3, 190.9258))
sketch9.addConstraint(Sketcher.Constraint("DistanceX", -1, 1, 1, 3, 425.9063))
doc.recompute()
hole2 = body.newObject("PartDesign::Hole", "Hole001")
hole2.Profile = sketch9
hole2.ThreadType = "None"
hole2.Diameter = 2.459
hole2.DepthType = "Dimension"
hole2.Depth = 4.25
hole2.DrillPoint = "Angled"
hole2.DrillPointAngle = 120
hole2.Reversed = True

doc.recompute()
